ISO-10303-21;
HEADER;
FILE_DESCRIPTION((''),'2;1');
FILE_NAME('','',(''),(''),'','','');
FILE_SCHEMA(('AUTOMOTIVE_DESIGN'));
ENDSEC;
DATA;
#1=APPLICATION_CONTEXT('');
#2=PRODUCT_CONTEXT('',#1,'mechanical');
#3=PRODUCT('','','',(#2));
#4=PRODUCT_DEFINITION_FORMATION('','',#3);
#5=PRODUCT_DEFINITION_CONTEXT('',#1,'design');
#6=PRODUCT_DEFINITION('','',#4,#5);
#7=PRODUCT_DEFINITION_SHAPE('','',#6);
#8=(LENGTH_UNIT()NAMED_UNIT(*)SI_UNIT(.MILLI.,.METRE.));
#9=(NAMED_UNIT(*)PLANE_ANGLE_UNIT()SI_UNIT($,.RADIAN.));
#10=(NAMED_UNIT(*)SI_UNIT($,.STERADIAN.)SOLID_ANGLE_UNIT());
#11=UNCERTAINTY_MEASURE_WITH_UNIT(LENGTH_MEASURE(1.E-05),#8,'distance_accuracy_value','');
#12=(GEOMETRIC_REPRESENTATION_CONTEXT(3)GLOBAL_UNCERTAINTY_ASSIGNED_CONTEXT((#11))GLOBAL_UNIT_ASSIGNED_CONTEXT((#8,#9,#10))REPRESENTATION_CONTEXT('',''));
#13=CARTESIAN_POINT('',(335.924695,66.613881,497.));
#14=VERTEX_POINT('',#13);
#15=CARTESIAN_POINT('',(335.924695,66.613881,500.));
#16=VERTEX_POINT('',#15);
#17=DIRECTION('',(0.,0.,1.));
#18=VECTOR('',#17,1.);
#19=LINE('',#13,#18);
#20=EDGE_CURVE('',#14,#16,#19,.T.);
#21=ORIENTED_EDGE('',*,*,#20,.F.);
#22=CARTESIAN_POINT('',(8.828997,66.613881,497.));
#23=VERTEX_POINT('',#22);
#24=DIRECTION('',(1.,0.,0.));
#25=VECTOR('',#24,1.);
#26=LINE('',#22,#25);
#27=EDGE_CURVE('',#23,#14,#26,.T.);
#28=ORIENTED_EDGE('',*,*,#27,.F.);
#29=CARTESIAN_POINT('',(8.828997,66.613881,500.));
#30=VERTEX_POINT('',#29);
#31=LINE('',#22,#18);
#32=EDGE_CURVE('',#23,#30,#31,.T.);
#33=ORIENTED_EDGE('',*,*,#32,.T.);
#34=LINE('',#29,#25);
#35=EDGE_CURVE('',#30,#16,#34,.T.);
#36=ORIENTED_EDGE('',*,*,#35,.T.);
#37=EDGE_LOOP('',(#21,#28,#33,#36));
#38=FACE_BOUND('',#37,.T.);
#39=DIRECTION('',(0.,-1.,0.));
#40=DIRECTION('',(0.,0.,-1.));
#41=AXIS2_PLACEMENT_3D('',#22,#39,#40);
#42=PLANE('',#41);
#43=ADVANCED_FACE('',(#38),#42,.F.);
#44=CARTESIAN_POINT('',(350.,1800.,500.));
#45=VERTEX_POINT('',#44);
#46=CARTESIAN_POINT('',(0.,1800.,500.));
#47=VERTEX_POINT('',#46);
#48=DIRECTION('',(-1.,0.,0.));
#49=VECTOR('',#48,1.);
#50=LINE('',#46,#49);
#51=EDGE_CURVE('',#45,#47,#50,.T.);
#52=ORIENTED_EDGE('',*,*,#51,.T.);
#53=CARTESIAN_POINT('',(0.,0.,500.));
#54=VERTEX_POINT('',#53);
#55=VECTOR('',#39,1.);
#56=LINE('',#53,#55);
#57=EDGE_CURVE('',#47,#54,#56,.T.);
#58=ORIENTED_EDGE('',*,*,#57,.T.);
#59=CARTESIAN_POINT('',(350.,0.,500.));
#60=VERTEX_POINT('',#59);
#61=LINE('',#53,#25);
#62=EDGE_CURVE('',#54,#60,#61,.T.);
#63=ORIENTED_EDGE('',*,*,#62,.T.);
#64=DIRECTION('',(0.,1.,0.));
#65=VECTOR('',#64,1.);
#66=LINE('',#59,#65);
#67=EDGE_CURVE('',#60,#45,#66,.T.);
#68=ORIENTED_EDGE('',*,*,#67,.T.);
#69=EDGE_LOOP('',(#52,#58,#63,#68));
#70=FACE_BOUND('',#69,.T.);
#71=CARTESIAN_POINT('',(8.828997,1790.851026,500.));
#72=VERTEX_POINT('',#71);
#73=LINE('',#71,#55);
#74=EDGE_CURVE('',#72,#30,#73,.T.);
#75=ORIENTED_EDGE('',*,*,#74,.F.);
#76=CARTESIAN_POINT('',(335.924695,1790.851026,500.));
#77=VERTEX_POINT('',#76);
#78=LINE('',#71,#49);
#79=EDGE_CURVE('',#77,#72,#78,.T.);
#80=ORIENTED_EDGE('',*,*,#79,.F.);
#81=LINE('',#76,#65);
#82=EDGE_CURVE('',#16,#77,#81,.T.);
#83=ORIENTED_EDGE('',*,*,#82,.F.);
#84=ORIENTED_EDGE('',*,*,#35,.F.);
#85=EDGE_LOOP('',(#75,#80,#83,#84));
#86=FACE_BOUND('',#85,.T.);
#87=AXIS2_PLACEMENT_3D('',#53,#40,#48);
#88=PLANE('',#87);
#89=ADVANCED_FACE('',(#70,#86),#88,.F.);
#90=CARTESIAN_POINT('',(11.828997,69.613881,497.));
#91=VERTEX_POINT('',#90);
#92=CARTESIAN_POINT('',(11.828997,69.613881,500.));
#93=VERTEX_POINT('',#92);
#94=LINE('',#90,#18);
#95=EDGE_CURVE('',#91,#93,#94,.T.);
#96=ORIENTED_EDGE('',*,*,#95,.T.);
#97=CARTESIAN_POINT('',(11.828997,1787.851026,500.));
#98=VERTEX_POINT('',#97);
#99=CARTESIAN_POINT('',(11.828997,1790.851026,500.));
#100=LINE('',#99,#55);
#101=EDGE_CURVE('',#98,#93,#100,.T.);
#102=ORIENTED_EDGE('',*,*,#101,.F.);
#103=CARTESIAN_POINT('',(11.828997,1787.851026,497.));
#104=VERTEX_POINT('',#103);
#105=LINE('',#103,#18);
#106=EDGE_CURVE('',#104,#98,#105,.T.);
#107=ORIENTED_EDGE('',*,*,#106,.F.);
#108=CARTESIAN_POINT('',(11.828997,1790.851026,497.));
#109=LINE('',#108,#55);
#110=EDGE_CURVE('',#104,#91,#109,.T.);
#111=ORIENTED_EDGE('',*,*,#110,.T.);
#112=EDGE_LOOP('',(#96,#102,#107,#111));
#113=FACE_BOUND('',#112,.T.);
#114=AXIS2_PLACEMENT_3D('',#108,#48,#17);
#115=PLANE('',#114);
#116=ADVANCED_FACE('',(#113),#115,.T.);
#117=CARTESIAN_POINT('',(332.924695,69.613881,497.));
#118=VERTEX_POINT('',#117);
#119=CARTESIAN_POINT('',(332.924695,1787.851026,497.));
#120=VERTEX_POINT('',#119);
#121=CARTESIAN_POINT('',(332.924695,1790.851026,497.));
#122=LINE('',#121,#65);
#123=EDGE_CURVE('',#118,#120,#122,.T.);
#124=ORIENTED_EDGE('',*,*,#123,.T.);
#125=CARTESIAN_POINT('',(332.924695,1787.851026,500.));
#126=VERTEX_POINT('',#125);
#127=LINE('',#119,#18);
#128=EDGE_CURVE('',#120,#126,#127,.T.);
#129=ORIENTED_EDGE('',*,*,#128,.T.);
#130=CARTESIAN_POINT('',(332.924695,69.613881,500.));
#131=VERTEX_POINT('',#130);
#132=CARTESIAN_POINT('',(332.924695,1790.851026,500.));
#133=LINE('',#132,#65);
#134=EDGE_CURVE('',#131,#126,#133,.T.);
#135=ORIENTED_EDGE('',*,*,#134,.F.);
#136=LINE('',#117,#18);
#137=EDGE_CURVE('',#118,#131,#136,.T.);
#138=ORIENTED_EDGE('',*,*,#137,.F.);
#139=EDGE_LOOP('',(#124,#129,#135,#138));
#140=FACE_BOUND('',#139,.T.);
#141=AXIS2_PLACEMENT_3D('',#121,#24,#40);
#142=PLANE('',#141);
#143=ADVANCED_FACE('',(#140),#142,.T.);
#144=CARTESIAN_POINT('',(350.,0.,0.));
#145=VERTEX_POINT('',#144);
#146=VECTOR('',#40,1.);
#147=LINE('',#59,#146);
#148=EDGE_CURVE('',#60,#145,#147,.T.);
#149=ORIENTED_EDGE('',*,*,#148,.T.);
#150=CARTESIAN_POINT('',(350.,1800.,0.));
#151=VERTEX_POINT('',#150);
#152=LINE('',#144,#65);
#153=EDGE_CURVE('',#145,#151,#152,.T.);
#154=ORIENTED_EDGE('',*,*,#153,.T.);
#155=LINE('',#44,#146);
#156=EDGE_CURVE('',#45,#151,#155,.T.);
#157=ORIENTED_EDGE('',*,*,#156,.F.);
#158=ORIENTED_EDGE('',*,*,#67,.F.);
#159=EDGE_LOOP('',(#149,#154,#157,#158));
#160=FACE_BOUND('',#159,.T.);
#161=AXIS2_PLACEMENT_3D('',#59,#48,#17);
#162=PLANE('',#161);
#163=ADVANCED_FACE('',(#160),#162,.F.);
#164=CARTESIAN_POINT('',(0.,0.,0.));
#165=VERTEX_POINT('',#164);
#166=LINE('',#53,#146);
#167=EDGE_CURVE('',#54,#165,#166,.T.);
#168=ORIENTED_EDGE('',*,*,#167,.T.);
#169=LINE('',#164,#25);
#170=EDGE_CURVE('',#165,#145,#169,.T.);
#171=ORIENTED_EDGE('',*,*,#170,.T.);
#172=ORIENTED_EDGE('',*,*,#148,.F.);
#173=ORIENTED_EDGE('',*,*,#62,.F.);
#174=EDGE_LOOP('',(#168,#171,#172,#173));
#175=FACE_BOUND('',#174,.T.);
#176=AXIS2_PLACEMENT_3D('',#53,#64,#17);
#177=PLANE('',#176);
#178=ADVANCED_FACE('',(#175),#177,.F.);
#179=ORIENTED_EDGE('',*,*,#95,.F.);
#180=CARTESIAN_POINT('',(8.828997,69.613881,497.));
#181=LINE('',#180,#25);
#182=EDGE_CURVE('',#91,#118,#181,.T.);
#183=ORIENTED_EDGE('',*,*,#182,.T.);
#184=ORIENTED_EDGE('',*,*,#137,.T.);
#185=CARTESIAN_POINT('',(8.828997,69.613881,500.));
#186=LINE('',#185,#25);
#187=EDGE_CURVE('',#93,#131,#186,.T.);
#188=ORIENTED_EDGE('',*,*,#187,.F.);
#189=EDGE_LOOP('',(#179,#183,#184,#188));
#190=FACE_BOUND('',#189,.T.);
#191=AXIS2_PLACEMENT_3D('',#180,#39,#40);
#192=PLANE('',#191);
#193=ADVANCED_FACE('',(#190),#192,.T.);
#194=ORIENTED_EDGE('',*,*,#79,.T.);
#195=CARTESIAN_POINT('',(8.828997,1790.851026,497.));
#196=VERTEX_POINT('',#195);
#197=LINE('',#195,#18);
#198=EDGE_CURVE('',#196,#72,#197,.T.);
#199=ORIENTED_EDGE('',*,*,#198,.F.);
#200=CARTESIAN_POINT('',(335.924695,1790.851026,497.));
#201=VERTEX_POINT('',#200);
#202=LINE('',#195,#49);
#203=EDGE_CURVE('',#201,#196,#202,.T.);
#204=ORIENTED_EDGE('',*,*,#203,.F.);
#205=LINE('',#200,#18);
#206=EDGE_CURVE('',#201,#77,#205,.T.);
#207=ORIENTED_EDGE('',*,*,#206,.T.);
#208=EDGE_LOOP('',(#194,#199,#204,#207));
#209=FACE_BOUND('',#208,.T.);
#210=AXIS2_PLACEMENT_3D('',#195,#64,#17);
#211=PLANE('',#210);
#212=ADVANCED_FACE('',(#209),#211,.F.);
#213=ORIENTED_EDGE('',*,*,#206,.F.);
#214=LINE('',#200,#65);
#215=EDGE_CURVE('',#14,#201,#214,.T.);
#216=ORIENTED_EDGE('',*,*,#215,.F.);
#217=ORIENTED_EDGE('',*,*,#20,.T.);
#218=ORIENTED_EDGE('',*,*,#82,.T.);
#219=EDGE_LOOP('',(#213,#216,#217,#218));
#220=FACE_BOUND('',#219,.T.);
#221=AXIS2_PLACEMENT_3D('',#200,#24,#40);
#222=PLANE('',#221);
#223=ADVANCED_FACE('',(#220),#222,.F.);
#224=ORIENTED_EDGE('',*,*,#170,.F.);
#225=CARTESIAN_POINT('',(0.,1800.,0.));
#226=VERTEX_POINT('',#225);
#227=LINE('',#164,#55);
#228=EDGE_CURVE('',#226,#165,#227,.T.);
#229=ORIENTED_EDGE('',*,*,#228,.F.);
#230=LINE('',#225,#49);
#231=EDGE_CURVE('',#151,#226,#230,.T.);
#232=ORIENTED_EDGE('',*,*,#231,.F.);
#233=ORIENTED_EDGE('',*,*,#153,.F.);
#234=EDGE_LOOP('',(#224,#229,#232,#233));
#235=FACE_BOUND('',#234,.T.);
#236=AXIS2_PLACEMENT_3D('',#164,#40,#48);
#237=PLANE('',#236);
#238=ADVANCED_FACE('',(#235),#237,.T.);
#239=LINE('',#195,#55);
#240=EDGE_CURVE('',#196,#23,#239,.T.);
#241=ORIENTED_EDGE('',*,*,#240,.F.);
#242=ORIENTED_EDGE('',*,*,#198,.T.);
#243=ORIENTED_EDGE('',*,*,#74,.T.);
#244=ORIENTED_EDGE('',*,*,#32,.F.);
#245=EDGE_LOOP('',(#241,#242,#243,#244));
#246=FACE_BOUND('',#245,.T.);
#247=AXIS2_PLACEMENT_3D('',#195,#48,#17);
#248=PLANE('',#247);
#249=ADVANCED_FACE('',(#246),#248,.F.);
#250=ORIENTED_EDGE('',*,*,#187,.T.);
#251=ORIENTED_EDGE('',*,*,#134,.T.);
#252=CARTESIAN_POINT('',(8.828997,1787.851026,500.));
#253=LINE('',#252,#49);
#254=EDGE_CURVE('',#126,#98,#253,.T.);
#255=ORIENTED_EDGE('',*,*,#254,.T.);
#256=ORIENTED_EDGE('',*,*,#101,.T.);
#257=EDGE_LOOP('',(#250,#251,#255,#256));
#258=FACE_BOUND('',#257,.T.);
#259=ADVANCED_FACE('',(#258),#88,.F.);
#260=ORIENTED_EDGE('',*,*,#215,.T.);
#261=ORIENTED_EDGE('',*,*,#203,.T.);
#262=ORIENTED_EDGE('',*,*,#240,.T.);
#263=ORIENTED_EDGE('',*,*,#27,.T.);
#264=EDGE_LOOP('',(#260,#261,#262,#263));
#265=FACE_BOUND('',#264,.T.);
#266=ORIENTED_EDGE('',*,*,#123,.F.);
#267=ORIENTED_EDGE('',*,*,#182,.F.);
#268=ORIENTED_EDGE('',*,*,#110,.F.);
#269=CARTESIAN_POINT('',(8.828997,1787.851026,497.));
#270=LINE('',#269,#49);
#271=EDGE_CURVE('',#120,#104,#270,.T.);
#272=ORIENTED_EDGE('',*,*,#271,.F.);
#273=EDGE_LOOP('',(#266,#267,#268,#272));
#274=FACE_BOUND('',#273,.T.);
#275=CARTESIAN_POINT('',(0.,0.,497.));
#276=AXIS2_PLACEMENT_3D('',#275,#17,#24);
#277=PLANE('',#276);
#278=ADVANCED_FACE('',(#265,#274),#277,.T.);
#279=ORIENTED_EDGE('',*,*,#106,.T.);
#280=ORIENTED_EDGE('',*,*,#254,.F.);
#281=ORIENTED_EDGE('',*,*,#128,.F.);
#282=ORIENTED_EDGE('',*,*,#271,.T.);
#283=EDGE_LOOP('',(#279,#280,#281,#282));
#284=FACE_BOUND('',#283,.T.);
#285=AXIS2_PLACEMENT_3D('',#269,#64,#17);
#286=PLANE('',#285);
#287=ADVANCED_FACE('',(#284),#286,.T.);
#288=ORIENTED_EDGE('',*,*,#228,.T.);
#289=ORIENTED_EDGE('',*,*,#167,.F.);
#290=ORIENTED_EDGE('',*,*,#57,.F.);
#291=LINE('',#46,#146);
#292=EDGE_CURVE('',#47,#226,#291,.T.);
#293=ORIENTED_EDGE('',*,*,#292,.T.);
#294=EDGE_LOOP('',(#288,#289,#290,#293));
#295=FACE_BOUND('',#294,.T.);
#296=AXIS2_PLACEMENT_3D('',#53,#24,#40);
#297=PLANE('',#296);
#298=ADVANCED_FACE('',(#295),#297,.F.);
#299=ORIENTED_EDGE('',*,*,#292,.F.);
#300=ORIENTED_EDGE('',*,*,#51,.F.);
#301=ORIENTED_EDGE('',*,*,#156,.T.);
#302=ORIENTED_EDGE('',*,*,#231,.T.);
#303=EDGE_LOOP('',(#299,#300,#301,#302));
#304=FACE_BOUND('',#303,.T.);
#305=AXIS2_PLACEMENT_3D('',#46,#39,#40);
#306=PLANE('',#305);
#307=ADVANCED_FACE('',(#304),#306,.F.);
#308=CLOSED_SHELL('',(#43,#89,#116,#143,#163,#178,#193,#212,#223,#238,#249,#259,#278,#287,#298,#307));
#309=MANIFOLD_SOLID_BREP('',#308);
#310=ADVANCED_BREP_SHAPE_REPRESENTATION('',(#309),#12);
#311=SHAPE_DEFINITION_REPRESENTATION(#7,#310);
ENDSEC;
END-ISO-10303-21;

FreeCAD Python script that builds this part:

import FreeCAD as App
import Part
import Sketcher

V = App.Vector
Q = App.Units.Quantity

doc = App.newDocument("Part")
params = doc.addObject("Spreadsheet::Sheet", "Params")
for row, (alias, value) in enumerate([
    ("sketch1_width", "350 mm"),
    ("sketch1_height", "1800 mm"),
    ("pad1_length", "500 mm"),
    ("pocket1_length", "3 mm"),
], start=1):
    params.set(f"A{row}", alias)
    params.set(f"B{row}", "=" + value)
    params.setAlias(f"B{row}", alias)

body = doc.addObject("PartDesign::Body", "Body")

sketch1 = body.newObject("Sketcher::SketchObject", "Sketch")
sketch1.AttachmentSupport = (doc.getObject("XY_Plane"), [""])
sketch1.MapMode = "FlatFace"
sketch1.addGeometry([
    Part.LineSegment(V(0, 1800, 0), V(0, 0, 0)),
    Part.LineSegment(V(0, 0, 0), V(350, 0, 0)),
    Part.LineSegment(V(350, 0, 0), V(350, 1800, 0)),
    Part.LineSegment(V(350, 1800, 0), V(0, 1800, 0)),
], False)
sketch1.addConstraint([
    Sketcher.Constraint("Coincident", 0, 2, 1, 1),
    Sketcher.Constraint("Coincident", 1, 2, 2, 1),
    Sketcher.Constraint("Coincident", 2, 2, 3, 1),
    Sketcher.Constraint("Coincident", 3, 2, 0, 1),
    Sketcher.Constraint("Vertical", 0),
    Sketcher.Constraint("Horizontal", 1),
    Sketcher.Constraint("Vertical", 2),
    Sketcher.Constraint("Horizontal", 3),
    Sketcher.Constraint("Coincident", 0, 2, -1, 1),
    Sketcher.Constraint("DistanceX", 1, 1, 1, 2, Q("350 mm")),
    Sketcher.Constraint("DistanceY", 0, 2, 0, 1, Q("1800 mm")),
])
sketch1.setExpression("Constraints[9]", "Params.sketch1_width")
sketch1.setExpression("Constraints[10]", "Params.sketch1_height")
pad1 = body.newObject("PartDesign::Pad", "Pad")
pad1.Profile = sketch1
pad1.setExpression("Length", "Params.pad1_length")

sketch2 = body.newObject("Sketcher::SketchObject", "Sketch001")
sketch2.AttachmentSupport = (doc.getObject("XY_Plane"), [""])
sketch2.MapMode = "FlatFace"
sketch2.AttachmentOffset = App.Placement(V(0, 0, 500), App.Rotation())
sketch2.addGeometry([
    Part.LineSegment(V(9, 1791, 0), V(9, 67, 0)),
    Part.LineSegment(V(9, 67, 0), V(336, 67, 0)),
    Part.LineSegment(V(336, 67, 0), V(336, 1791, 0)),
    Part.LineSegment(V(336, 1791, 0), V(9, 1791, 0)),
    Part.LineSegment(V(333, 70, 0), V(12, 70, 0)),
    Part.LineSegment(V(12, 70, 0), V(12, 1788, 0)),
    Part.LineSegment(V(12, 1788, 0), V(333, 1788, 0)),
    Part.LineSegment(V(333, 1788, 0), V(333, 70, 0)),
], False)
sketch2.addConstraint([
    Sketcher.Constraint("Coincident", 0, 2, 1, 1),
    Sketcher.Constraint("Coincident", 1, 2, 2, 1),
    Sketcher.Constraint("Coincident", 2, 2, 3, 1),
    Sketcher.Constraint("Coincident", 3, 2, 0, 1),
    Sketcher.Constraint("Coincident", 4, 2, 5, 1),
    Sketcher.Constraint("Coincident", 5, 2, 6, 1),
    Sketcher.Constraint("Coincident", 6, 2, 7, 1),
    Sketcher.Constraint("Coincident", 7, 2, 4, 1),
    Sketcher.Constraint("Vertical", 0),
    Sketcher.Constraint("Horizontal", 1),
    Sketcher.Constraint("Vertical", 2),
    Sketcher.Constraint("Horizontal", 3),
    Sketcher.Constraint("Horizontal", 4),
    Sketcher.Constraint("Vertical", 5),
    Sketcher.Constraint("Horizontal", 6),
    Sketcher.Constraint("Vertical", 7),
    Sketcher.Constraint("DistanceX", 0, 2, 4, 2, Q("3 mm")),
    Sketcher.Constraint("DistanceY", 0, 2, 4, 2, Q("3 mm")),
    Sketcher.Constraint("DistanceY", 5, 2, 3, 2, Q("3 mm")),
    Sketcher.Constraint("DistanceX", 6, 2, 2, 2, Q("3 mm")),
    Sketcher.Constraint("DistanceX", 1, 1, 1, 2, Q("327.095698 mm")),
    Sketcher.Constraint("DistanceY", 0, 2, 0, 1, Q("1724.237145 mm")),
    Sketcher.Constraint("DistanceY", -1, 1, 0, 2, Q("66.613881 mm")),
    Sketcher.Constraint("DistanceX", -1, 1, 0, 2, Q("8.828997 mm")),
])
pocket1 = body.newObject("PartDesign::Pocket", "Pocket")
pocket1.Profile = sketch2
pocket1.setExpression("Length", "Params.pocket1_length")

doc.recompute()
